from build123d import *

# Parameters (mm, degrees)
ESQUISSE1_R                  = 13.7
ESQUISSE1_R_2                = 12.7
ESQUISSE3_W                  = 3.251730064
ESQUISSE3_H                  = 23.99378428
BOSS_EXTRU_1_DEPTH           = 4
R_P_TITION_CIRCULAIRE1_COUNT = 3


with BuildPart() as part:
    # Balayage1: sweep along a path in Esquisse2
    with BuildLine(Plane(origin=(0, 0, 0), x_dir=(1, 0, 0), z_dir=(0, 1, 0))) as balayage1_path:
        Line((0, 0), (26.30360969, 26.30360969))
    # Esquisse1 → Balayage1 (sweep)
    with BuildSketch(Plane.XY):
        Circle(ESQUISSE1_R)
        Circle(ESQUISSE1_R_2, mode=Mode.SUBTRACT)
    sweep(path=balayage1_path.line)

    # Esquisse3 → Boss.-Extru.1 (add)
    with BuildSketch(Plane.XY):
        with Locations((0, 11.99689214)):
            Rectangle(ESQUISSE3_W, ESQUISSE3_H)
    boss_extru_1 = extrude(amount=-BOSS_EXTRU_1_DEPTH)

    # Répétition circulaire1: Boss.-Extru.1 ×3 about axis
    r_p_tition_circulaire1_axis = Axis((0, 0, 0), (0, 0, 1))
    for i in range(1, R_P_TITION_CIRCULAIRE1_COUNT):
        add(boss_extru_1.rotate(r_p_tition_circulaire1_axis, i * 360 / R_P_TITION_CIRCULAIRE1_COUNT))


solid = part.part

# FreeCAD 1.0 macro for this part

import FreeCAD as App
import Part
import Sketcher

V = App.Vector
Q = App.Units.Quantity


def add_polygon(sketch, points):
    """Adds a closed chain of lines whose ends are joined by coincident constraints."""
    first, n = sketch.GeometryCount, len(points)
    for a, b in zip(points, points[1:] + points[:1]):
        sketch.addGeometry(Part.LineSegment(App.Vector(*a, 0), App.Vector(*b, 0)), False)
    for i in range(n):
        sketch.addConstraint(Sketcher.Constraint("Coincident", first + i, 2, first + (i + 1) % n, 1))

doc = App.newDocument("Part")
body = doc.addObject("PartDesign::Body", "Body")

# Sketch on XY plane
sketch1 = body.newObject("Sketcher::SketchObject", "Sketch")
sketch1.AttachmentSupport = (doc.getObject("XY_Plane"), [""])
sketch1.MapMode = "FlatFace"
sketch1.addGeometry([
    Part.Circle(V(0, 0, 0), V(0, 0, 1), 14),
    Part.Circle(V(0, 0, 0), V(0, 0, 1), 13),
], False)
sketch1.addConstraint([
    Sketcher.Constraint("Coincident", 0, 3, -1, 1),
    Sketcher.Constraint("Coincident", 1, 3, -1, 1),
    Sketcher.Constraint("Diameter", 0, Q("27.4 mm")),
    Sketcher.Constraint("Diameter", 1, Q("25.4 mm")),
])

# Sketch on an angled plane
sketch2 = body.newObject("Sketcher::SketchObject", "Sketch001")
sketch2.Placement = App.Placement(V(0, 0, 0), App.Rotation(V(0.707106781, 0, -0.707106781), V(0, 0.999999999, 0), V(0.707106781, 0, 0.707106781), "ZXY"))
sketch2.addGeometry(Part.LineSegment(V(0, 0, 0), V(37, 0, 0)), False)
sketch2.addConstraint([
    Sketcher.Constraint("Horizontal", 0),
    Sketcher.Constraint("Coincident", 0, 1, -1, 1),
    Sketcher.Constraint("DistanceX", 0, 1, 0, 2, Q("37.198922 mm")),
])
doc.recompute()

additivepipe = body.newObject("PartDesign::AdditivePipe", "AdditivePipe")
additivepipe.Profile = sketch1
additivepipe.Spine = (sketch2, ["Edge1"])

# Sketch on XY plane
sketch3 = body.newObject("Sketcher::SketchObject", "Sketch002")
sketch3.AttachmentSupport = (doc.getObject("XY_Plane"), [""])
sketch3.MapMode = "FlatFace"
add_polygon(sketch3, [(-1.6, 24), (-1.6, 0), (1.6, 0), (1.6, 24)])  # lines 0-3
sketch3.addConstraint([
    Sketcher.Constraint("Vertical", 0),
    Sketcher.Constraint("Horizontal", 1),
    Sketcher.Constraint("Vertical", 2),
    Sketcher.Constraint("Horizontal", 3),
    Sketcher.Constraint("Symmetric", 0, 2, 1, 2, -1, 1),
    Sketcher.Constraint("DistanceX", 1, 1, 1, 2, Q("3.25173 mm")),
    Sketcher.Constraint("DistanceY", 0, 2, 0, 1, Q("23.993784 mm")),
])
pad1 = body.newObject("PartDesign::Pad", "Pad")
pad1.Profile = sketch3
pad1.Length = 4
pad1.Reversed = True
doc.recompute()

polarpattern = body.newObject("PartDesign::PolarPattern", "PolarPattern")
polarpattern.Originals = [pad1]
polarpattern.Axis = (doc.getObject("Z_Axis"), [""])
polarpattern.Angle = 360
polarpattern.Occurrences = 3
body.Tip = polarpattern

doc.recompute()
